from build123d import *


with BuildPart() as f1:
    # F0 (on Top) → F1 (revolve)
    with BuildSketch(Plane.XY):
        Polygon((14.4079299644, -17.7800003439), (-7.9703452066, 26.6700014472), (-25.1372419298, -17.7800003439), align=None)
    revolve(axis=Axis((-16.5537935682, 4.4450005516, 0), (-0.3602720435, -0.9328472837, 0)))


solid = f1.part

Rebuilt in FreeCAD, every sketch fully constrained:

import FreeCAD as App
import Part
import Sketcher

V = App.Vector


def add_polygon(sketch, points):
    """Adds a closed chain of lines whose ends are joined by coincident constraints."""
    first, n = sketch.GeometryCount, len(points)
    for a, b in zip(points, points[1:] + points[:1]):
        sketch.addGeometry(Part.LineSegment(App.Vector(*a, 0), App.Vector(*b, 0)), False)
    for i in range(n):
        sketch.addConstraint(Sketcher.Constraint("Coincident", first + i, 2, first + (i + 1) % n, 1))

doc = App.newDocument("Part")
params = doc.addObject("Spreadsheet::Sheet", "Params")
for row, (alias, value) in enumerate([
    ("revolution_angle", "360 deg"),
], start=1):
    params.set(f"A{row}", alias)
    params.set(f"B{row}", "=" + value)
    params.setAlias(f"B{row}", alias)

body = doc.addObject("PartDesign::Body", "Body")

sketch1 = doc.addObject("Sketcher::SketchObject", "Sketch")
body.addObject(sketch1)
sketch1.AttachmentSupport = (doc.XY_Plane, [""])
sketch1.MapMode = "FlatFace"
add_polygon(sketch1, [(14, -18), (-8, 27), (-25, -18)])
sketch1.addGeometry(Part.LineSegment(V(-8, 27, 0), V(-25, -18, 0)), True)
sketch1.addConstraint([
    Sketcher.Constraint("Horizontal", 2),
    Sketcher.Constraint("Coincident", 3, 1, 0, 2),
    Sketcher.Constraint("Coincident", 3, 2, 1, 2),
    Sketcher.Constraint("DistanceY", -1, 1, 0, 2, 26.670001),
    Sketcher.Constraint("DistanceY", 1, 2, -1, 1, 17.78),
    Sketcher.Constraint("DistanceX", 2, 1, 2, 2, 39.545172),
    Sketcher.Constraint("DistanceX", 1, 2, -1, 1, 25.137242),
    Sketcher.Constraint("Distance", 0, 49.765348),
])
revolution = doc.addObject("PartDesign::Revolution", "Revolution")
body.addObject(revolution)
revolution.Profile = sketch1
revolution.ReferenceAxis = (sketch1, ["Axis0"])
revolution.setExpression("Angle", "Params.revolution_angle")

doc.recompute()
